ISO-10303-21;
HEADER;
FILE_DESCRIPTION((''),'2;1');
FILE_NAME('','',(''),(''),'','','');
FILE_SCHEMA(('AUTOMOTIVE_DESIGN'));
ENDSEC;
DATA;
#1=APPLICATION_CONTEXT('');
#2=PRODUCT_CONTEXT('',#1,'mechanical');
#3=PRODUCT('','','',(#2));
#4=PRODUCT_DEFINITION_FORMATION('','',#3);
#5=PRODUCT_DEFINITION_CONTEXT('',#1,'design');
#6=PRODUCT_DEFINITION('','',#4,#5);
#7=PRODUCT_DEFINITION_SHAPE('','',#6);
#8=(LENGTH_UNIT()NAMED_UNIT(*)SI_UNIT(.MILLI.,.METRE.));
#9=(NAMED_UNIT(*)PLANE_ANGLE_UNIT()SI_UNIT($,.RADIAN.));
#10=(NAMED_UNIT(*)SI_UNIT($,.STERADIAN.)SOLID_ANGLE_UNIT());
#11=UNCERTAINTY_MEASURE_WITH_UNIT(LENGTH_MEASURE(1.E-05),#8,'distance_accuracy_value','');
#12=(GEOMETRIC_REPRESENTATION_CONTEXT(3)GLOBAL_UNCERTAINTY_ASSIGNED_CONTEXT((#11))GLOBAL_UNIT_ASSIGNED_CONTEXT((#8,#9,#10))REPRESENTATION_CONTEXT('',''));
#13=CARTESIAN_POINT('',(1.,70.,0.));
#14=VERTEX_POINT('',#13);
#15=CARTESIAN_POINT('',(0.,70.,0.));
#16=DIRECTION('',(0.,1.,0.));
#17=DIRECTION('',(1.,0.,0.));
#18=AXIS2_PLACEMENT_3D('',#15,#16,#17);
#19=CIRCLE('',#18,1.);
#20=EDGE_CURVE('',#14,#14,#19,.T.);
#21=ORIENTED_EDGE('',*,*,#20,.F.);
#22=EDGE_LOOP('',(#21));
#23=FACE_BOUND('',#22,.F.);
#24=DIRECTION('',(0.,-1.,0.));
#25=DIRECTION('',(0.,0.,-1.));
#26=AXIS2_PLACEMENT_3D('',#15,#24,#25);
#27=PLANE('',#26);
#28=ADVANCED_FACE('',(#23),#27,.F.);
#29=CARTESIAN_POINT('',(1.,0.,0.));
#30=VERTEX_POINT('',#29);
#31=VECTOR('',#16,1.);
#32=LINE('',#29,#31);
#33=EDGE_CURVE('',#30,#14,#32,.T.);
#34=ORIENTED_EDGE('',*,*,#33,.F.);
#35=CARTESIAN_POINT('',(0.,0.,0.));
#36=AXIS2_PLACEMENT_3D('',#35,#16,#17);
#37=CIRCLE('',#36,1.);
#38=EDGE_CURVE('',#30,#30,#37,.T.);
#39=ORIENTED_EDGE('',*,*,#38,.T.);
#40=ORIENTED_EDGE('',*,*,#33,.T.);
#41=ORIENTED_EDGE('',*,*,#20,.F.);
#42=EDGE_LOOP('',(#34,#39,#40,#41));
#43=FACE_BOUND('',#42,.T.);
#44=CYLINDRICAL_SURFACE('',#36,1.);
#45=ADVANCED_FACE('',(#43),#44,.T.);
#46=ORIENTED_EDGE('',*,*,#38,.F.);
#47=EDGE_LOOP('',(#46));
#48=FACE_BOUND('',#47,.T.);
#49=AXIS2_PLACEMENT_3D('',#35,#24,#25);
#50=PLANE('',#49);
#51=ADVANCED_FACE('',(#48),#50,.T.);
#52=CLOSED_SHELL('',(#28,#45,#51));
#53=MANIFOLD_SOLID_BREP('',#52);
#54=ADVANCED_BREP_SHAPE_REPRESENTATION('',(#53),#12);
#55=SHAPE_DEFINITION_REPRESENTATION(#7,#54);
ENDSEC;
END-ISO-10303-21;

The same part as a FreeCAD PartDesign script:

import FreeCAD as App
import Part
import Sketcher

V = App.Vector

doc = App.newDocument("Part")
body = doc.addObject("PartDesign::Body", "Body")

sketch1 = body.newObject("Sketcher::SketchObject", "Sketch")
sketch1.AttachmentSupport = (doc.getObject("XZ_Plane"), [""])
sketch1.MapMode = "FlatFace"
sketch1.addGeometry(Part.Circle(V(0, 0, 0), V(0, 0, 1), 1), False)
sketch1.addConstraint(Sketcher.Constraint("Coincident", 0, 3, -1, 1))
sketch1.addConstraint(Sketcher.Constraint("Diameter", 0, 2.0))

sketch2 = body.newObject("Sketcher::SketchObject", "Sketch001")
sketch2.AttachmentSupport = (doc.getObject("XY_Plane"), [""])
sketch2.MapMode = "FlatFace"
sketch2.addGeometry(Part.LineSegment(V(0, 0, 0), V(0, 70, 0)), False)
sketch2.addConstraint(Sketcher.Constraint("Vertical", 0))
sketch2.addConstraint(Sketcher.Constraint("Coincident", 0, 1, -1, 1))
sketch2.addConstraint(Sketcher.Constraint("DistanceY", 0, 1, 0, 2, 70.0))
doc.recompute()

additivepipe = body.newObject("PartDesign::AdditivePipe", "AdditivePipe")
additivepipe.Profile = sketch1
additivepipe.Spine = (sketch2, ["Edge1"])

doc.recompute()
